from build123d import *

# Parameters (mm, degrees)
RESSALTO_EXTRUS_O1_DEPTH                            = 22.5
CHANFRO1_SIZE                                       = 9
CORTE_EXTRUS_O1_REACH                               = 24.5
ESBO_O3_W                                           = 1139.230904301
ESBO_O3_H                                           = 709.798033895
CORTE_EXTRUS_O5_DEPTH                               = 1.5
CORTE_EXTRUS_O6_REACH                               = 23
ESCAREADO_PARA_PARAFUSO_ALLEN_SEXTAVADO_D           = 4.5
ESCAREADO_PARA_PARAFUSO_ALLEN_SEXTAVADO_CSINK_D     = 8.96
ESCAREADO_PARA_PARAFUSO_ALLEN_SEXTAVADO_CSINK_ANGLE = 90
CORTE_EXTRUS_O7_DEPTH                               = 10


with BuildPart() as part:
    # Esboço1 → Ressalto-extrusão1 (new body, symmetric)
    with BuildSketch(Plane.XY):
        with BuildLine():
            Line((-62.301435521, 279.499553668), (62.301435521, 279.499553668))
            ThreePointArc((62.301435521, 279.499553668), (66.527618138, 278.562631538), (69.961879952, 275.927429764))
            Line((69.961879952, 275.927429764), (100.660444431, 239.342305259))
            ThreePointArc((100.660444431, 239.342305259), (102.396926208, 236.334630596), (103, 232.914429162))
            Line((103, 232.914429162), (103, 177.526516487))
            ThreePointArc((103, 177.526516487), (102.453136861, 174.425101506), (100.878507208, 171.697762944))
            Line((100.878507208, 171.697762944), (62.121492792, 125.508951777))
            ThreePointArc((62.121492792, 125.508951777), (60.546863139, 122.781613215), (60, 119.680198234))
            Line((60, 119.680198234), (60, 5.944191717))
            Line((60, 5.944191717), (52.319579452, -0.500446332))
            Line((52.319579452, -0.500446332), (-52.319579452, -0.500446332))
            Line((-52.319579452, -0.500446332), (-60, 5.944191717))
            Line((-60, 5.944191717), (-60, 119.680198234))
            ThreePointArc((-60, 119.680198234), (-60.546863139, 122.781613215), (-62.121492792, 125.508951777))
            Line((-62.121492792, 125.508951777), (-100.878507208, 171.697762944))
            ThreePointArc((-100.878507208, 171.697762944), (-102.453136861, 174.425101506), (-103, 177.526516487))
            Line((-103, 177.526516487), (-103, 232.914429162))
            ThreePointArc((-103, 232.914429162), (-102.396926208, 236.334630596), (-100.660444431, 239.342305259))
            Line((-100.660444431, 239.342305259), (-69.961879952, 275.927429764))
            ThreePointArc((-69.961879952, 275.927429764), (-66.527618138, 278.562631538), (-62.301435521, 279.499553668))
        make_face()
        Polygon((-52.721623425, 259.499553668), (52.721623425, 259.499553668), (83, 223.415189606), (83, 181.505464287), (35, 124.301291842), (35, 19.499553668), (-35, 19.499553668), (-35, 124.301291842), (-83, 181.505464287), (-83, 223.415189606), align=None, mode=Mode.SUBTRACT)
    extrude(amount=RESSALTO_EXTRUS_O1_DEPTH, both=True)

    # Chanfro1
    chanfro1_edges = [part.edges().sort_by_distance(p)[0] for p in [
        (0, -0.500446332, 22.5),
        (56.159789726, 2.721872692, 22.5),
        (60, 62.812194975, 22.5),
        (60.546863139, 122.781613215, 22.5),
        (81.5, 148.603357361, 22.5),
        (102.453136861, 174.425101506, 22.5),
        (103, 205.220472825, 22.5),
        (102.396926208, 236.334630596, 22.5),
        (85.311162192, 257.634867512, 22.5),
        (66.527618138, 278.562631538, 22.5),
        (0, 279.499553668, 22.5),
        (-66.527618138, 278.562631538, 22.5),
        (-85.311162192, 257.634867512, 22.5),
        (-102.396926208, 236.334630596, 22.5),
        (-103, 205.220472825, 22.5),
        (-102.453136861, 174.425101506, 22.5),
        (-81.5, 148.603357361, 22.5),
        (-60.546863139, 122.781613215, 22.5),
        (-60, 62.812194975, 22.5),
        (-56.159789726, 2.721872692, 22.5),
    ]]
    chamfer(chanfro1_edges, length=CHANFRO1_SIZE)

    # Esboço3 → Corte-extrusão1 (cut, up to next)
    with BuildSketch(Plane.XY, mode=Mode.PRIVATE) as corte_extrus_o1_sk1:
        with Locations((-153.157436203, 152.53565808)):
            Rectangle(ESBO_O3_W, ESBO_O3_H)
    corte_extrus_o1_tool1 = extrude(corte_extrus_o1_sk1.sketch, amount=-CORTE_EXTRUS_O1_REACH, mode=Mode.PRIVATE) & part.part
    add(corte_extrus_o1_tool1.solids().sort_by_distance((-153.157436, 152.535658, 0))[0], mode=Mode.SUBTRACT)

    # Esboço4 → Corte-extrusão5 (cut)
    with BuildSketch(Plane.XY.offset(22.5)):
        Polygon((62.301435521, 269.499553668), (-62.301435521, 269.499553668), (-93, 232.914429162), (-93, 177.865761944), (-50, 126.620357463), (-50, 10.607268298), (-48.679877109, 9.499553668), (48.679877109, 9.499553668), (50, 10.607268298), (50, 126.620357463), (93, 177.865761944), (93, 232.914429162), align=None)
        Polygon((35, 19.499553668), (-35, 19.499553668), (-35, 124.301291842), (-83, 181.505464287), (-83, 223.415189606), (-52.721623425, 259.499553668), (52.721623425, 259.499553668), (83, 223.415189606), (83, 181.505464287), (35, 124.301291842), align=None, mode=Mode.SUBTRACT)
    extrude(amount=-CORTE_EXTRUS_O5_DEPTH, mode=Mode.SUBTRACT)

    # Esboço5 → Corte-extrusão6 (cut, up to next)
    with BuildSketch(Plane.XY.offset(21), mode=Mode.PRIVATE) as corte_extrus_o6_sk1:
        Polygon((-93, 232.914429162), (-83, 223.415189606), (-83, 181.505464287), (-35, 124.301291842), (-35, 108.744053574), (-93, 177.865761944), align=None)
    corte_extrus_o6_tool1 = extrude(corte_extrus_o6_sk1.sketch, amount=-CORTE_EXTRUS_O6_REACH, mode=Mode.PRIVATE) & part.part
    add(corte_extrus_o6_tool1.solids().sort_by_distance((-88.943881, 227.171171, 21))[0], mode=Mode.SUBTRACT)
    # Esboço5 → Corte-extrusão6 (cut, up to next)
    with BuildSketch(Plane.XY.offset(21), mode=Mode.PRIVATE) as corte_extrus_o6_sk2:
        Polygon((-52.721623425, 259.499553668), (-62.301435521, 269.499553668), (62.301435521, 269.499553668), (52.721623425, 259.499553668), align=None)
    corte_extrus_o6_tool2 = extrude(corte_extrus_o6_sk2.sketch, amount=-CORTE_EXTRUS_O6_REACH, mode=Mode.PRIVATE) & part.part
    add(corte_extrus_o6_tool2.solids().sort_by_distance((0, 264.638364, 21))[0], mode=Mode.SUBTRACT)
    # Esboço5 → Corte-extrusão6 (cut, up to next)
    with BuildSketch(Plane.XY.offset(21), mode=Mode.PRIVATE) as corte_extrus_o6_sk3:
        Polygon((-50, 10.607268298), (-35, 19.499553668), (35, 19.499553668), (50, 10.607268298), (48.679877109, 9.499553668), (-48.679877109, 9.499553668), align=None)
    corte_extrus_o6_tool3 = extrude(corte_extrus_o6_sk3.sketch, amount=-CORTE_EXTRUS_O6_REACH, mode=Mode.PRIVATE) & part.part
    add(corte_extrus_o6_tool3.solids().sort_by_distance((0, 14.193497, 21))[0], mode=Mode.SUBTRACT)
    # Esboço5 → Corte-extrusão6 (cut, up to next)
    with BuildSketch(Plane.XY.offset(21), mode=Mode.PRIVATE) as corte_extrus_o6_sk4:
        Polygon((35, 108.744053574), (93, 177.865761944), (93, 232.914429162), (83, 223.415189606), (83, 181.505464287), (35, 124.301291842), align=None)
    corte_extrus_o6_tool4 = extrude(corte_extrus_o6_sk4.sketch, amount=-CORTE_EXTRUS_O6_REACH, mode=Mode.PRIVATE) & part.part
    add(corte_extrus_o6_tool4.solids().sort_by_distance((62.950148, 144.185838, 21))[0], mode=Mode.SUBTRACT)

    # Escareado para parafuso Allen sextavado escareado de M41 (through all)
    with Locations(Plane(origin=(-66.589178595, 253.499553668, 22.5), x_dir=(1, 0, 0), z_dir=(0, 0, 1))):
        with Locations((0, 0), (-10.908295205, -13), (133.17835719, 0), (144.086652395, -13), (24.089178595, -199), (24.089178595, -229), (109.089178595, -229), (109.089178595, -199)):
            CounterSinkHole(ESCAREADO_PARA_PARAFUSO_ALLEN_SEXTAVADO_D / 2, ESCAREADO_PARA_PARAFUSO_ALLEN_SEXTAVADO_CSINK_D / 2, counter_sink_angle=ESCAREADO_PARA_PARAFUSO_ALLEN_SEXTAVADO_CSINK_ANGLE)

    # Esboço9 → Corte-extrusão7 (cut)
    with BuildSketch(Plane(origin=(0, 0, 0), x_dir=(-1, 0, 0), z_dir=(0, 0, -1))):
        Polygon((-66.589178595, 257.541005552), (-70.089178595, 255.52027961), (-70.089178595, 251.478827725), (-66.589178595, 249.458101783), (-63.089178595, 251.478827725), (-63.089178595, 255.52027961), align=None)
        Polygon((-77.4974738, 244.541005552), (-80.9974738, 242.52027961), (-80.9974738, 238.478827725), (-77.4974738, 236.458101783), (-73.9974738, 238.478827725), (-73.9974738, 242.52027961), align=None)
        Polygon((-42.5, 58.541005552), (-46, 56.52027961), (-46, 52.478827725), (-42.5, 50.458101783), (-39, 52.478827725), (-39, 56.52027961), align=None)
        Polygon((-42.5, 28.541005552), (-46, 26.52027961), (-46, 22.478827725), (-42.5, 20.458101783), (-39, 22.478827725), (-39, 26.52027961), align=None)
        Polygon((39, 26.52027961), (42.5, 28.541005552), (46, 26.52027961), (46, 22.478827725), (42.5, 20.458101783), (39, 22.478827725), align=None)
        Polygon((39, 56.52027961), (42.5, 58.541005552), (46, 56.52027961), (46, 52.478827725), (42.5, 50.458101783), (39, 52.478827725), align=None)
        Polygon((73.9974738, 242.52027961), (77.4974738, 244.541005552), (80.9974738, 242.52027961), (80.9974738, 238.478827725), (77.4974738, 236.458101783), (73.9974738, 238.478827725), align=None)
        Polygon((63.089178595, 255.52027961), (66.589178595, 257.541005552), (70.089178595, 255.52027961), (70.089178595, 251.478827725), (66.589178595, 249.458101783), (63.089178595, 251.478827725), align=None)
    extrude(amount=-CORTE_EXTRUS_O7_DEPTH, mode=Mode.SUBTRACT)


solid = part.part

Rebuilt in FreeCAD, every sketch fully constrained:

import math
import FreeCAD as App
import Part
import Sketcher
Q = App.Units.Quantity


def edges_at(feature, points):
    """Names of the edges that pass closest to the given points."""
    edges = feature.Shape.Edges
    near = lambda p: min(range(len(edges)), key=lambda i: edges[i].distToShape(Part.Vertex(*p))[0])
    return sorted({f"Edge{near(p) + 1}" for p in points})


def add_polygon(sketch, points):
    """Adds a closed chain of lines whose ends are joined by coincident constraints."""
    first, n = sketch.GeometryCount, len(points)
    for a, b in zip(points, points[1:] + points[:1]):
        sketch.addGeometry(Part.LineSegment(App.Vector(*a, 0), App.Vector(*b, 0)), False)
    for i in range(n):
        sketch.addConstraint(Sketcher.Constraint("Coincident", first + i, 2, first + (i + 1) % n, 1))

doc = App.newDocument("Part")
params = doc.addObject("Spreadsheet::Sheet", "Params")
for row, (alias, value) in enumerate([
    ("sketch1_radius", "10 mm"),
    ("sketch1_width", "70 mm"),
    ("pad1_length", "45 mm"),
    ("chamfer_size", "9 mm"),
    ("pocket1_length", "22.5 mm"),
    ("sketch3_width", "70 mm"),
    ("pocket2_length", "1.5 mm"),
    ("pocket3_length", "21 mm"),
    ("sketch6_width", "70 mm"),
    ("pocket6_length", "21 mm"),
    ("sketch8_diameter", "4.5 mm"),
    ("hole_diameter", "4.5 mm"),
    ("hole_csink_diameter", "8.96 mm"),
    ("pocket7_length", "10 mm"),
], start=1):
    params.set(f"A{row}", alias)
    params.set(f"B{row}", "=" + value)
    params.setAlias(f"B{row}", alias)

body = doc.addObject("PartDesign::Body", "Body")

sketch1 = body.newObject("Sketcher::SketchObject", "Sketch")
sketch1.AttachmentSupport = (doc.getObject("XY_Plane"), [""])
sketch1.MapMode = "FlatFace"
sketch1.addGeometry(Part.LineSegment(App.Vector(62.301436, 279.499554, 0), App.Vector(-62.301436, 279.499554, 0)), False)
sketch1.addGeometry(Part.ArcOfCircle(Part.Circle(App.Vector(-62.301436, 269.499554, 0), App.Vector(0, 0, 1), 10), math.radians(90), math.radians(140)), False)
sketch1.addGeometry(Part.LineSegment(App.Vector(-69.96188, 275.92743, 0), App.Vector(-100.660444, 239.342305, 0)), False)
sketch1.addGeometry(Part.ArcOfCircle(Part.Circle(App.Vector(-93, 232.914429, 0), App.Vector(0, 0, 1), 10), math.radians(140), math.radians(180)), False)
sketch1.addGeometry(Part.LineSegment(App.Vector(-103, 232.914429, 0), App.Vector(-103, 177.526516, 0)), False)
sketch1.addGeometry(Part.ArcOfCircle(Part.Circle(App.Vector(-93.932069, 177.526516, 0), App.Vector(0, 0, 1), 9.067931), math.radians(180), math.radians(220)), False)
sketch1.addGeometry(Part.LineSegment(App.Vector(-100.878507, 171.697763, 0), App.Vector(-62.121493, 125.508952, 0)), False)
sketch1.addGeometry(Part.ArcOfCircle(Part.Circle(App.Vector(-69.067931, 119.680198, 0), App.Vector(0, 0, 1), 9.067931), math.radians(0), math.radians(40)), False)
sketch1.addGeometry(Part.LineSegment(App.Vector(-60, 119.680198, 0), App.Vector(-60, 5.944192, 0)), False)
sketch1.addGeometry(Part.LineSegment(App.Vector(-60, 5.944192, 0), App.Vector(-52.319579, -0.500446, 0)), False)
sketch1.addGeometry(Part.LineSegment(App.Vector(-52.319579, -0.500446, 0), App.Vector(52.319579, -0.500446, 0)), False)
sketch1.addGeometry(Part.LineSegment(App.Vector(52.319579, -0.500446, 0), App.Vector(60, 5.944192, 0)), False)
sketch1.addGeometry(Part.LineSegment(App.Vector(60, 5.944192, 0), App.Vector(60, 119.680198, 0)), False)
sketch1.addGeometry(Part.ArcOfCircle(Part.Circle(App.Vector(69.067931, 119.680198, 0), App.Vector(0, 0, 1), 9.067931), math.radians(140), math.radians(180)), False)
sketch1.addGeometry(Part.LineSegment(App.Vector(62.121493, 125.508952, 0), App.Vector(100.878507, 171.697763, 0)), False)
sketch1.addGeometry(Part.ArcOfCircle(Part.Circle(App.Vector(93.932069, 177.526516, 0), App.Vector(0, 0, 1), 9.067931), math.radians(-40), math.radians(0)), False)
sketch1.addGeometry(Part.LineSegment(App.Vector(103, 177.526516, 0), App.Vector(103, 232.914429, 0)), False)
sketch1.addGeometry(Part.ArcOfCircle(Part.Circle(App.Vector(93, 232.914429, 0), App.Vector(0, 0, 1), 10), math.radians(0), math.radians(40)), False)
sketch1.addGeometry(Part.LineSegment(App.Vector(100.660444, 239.342305, 0), App.Vector(69.96188, 275.92743, 0)), False)
sketch1.addGeometry(Part.ArcOfCircle(Part.Circle(App.Vector(62.301436, 269.499554, 0), App.Vector(0, 0, 1), 10), math.radians(40), math.radians(90)), False)
add_polygon(sketch1, [(-52.721623, 259.499554), (52.721623, 259.499554), (83, 223.41519), (83, 181.505464), (35, 124.301292), (35, 19.499554), (-35, 19.499554), (-35, 124.301292), (-83, 181.505464), (-83, 223.41519)])
sketch1.addConstraint([
    Sketcher.Constraint("Tangent", 0, 2, 1, 1),
    Sketcher.Constraint("Tangent", 1, 2, 2, 1),
    Sketcher.Constraint("Tangent", 2, 2, 3, 1),
    Sketcher.Constraint("Tangent", 3, 2, 4, 1),
    Sketcher.Constraint("Tangent", 4, 2, 5, 1),
    Sketcher.Constraint("Tangent", 5, 2, 6, 1),
    Sketcher.Constraint("Tangent", 6, 2, 7, 2),
    Sketcher.Constraint("Tangent", 7, 1, 8, 1),
    Sketcher.Constraint("Coincident", 8, 2, 9, 1),
    Sketcher.Constraint("Coincident", 9, 2, 10, 1),
    Sketcher.Constraint("Coincident", 10, 2, 11, 1),
    Sketcher.Constraint("Coincident", 11, 2, 12, 1),
    Sketcher.Constraint("Tangent", 12, 2, 13, 2),
    Sketcher.Constraint("Tangent", 13, 1, 14, 1),
    Sketcher.Constraint("Tangent", 14, 2, 15, 1),
    Sketcher.Constraint("Tangent", 15, 2, 16, 1),
    Sketcher.Constraint("Tangent", 16, 2, 17, 1),
    Sketcher.Constraint("Tangent", 17, 2, 18, 1),
    Sketcher.Constraint("Tangent", 18, 2, 19, 1),
    Sketcher.Constraint("Tangent", 19, 2, 0, 1),
    Sketcher.Constraint("Horizontal", 0),
    Sketcher.Constraint("Vertical", 4),
    Sketcher.Constraint("Vertical", 8),
    Sketcher.Constraint("Horizontal", 10),
    Sketcher.Constraint("Vertical", 12),
    Sketcher.Constraint("Vertical", 16),
    Sketcher.Constraint("Horizontal", 20),
    Sketcher.Constraint("Vertical", 22),
    Sketcher.Constraint("Vertical", 24),
    Sketcher.Constraint("Horizontal", 25),
    Sketcher.Constraint("Vertical", 26),
    Sketcher.Constraint("Vertical", 28),
    Sketcher.Constraint("Equal", 1, 3),
    Sketcher.Constraint("Equal", 5, 7),
    Sketcher.Constraint("Equal", 7, 13),
    Sketcher.Constraint("Equal", 13, 15),
    Sketcher.Constraint("Equal", 3, 17),
    Sketcher.Constraint("Equal", 17, 19),
    Sketcher.Constraint("Symmetric", 7, 3, 13, 3, -2),
    Sketcher.Constraint("Symmetric", 5, 3, 15, 3, -2),
    Sketcher.Constraint("Symmetric", 2, 2, 17, 2, -2),
    Sketcher.Constraint("Symmetric", 23, 2, 26, 2, -2),
    Sketcher.Constraint("Symmetric", 22, 2, 27, 2, -2),
    Sketcher.Constraint("Perpendicular", 2, 9),
    Sketcher.Constraint("Perpendicular", 6, 11),
    Sketcher.Constraint("Perpendicular", 9, 14),
    Sketcher.Constraint("Parallel", 18, 21),
    Sketcher.Constraint("Parallel", 14, 23),
    Sketcher.Constraint("Parallel", 23, 29),
    Sketcher.Constraint("Horizontal", 8, 2, 11, 2),
    Sketcher.Constraint("Horizontal", 21, 2, 28, 2),
    Sketcher.Constraint("Radius", 1, Q("10 mm")),
    Sketcher.Constraint("DistanceX", 25, 2, 25, 1, Q("70 mm")),
    Sketcher.Constraint("Angle", 2, Q("-130 deg")),
    Sketcher.Constraint("DistanceX", 3, 3, -1, 1, Q("93 mm")),
    Sketcher.Constraint("DistanceX", 7, 1, -1, 1, Q("60 mm")),
    Sketcher.Constraint("DistanceX", -1, 1, 21, 2, Q("83 mm")),
    Sketcher.Constraint("DistanceY", 20, 2, 19, 3, Q("10 mm")),
    Sketcher.Constraint("DistanceY", 10, 2, 24, 2, Q("20 mm")),
    Sketcher.Constraint("Radius", 5, Q("9.067931 mm")),
    Sketcher.Constraint("DistanceY", 3, 3, 1, 2, Q("43.013001 mm")),
    Sketcher.Constraint("DistanceX", 10, 1, 10, 2, Q("104.639159 mm")),
    Sketcher.Constraint("DistanceY", 24, 2, 24, 1, Q("104.801738 mm")),
    Sketcher.Constraint("DistanceY", -1, 1, 7, 3, Q("119.680198 mm")),
    Sketcher.Constraint("DistanceY", 9, 2, 6, 2, Q("126.009398 mm")),
    Sketcher.Constraint("Distance", 21, Q("47.104792 mm")),
    Sketcher.Constraint("DistanceY", 4, 2, 4, 1, Q("55.387913 mm")),
])
sketch1.setExpression("Constraints[61]", "Params.sketch1_radius")
sketch1.setExpression("Constraints[62]", "Params.sketch1_width")
pad1 = body.newObject("PartDesign::Pad", "Pad")
pad1.Profile = sketch1
pad1.setExpression("Length", "Params.pad1_length")
pad1.Midplane = True
doc.recompute()

chamfer = body.newObject("PartDesign::Chamfer", "Chamfer")
chamfer.Base = (pad1, edges_at(pad1, [
    (0, -0.5, 22.5),
    (56.16, 2.722, 22.5),
    (60, 62.812, 22.5),
    (60.547, 122.782, 22.5),
    (81.5, 148.603, 22.5),
    (102.453, 174.425, 22.5),
    (103, 205.22, 22.5),
    (102.397, 236.335, 22.5),
    (85.311, 257.635, 22.5),
    (66.528, 278.563, 22.5),
    (0, 279.5, 22.5),
    (-66.528, 278.563, 22.5),
    (-85.311, 257.635, 22.5),
    (-102.397, 236.335, 22.5),
    (-103, 205.22, 22.5),
    (-102.453, 174.425, 22.5),
    (-81.5, 148.603, 22.5),
    (-60.547, 122.782, 22.5),
    (-60, 62.812, 22.5),
    (-56.16, 2.722, 22.5),
]))
chamfer.setExpression("Size", "Params.chamfer_size")

sketch2 = body.newObject("Sketcher::SketchObject", "Sketch001")
sketch2.AttachmentSupport = (doc.getObject("XY_Plane"), [""])
sketch2.MapMode = "FlatFace"
add_polygon(sketch2, [(-722.772888, 507.434675), (-722.772888, -202.363359), (416.458016, -202.363359), (416.458016, 507.434675)])
sketch2.addConstraint([
    Sketcher.Constraint("Vertical", 0),
    Sketcher.Constraint("Horizontal", 1),
    Sketcher.Constraint("Vertical", 2),
    Sketcher.Constraint("Horizontal", 3),
    Sketcher.Constraint("DistanceX", 1, 1, 1, 2, Q("1139.230904 mm")),
    Sketcher.Constraint("DistanceY", 0, 2, 0, 1, Q("709.798034 mm")),
    Sketcher.Constraint("DistanceX", 0, 2, -1, 1, Q("722.772888 mm")),
    Sketcher.Constraint("DistanceY", 0, 2, -1, 1, Q("202.363359 mm")),
])
pocket1 = body.newObject("PartDesign::Pocket", "Pocket")
pocket1.Profile = sketch2
pocket1.setExpression("Length", "Params.pocket1_length")

sketch3 = body.newObject("Sketcher::SketchObject", "Sketch002")
sketch3.AttachmentSupport = (doc.getObject("XY_Plane"), [""])
sketch3.MapMode = "FlatFace"
sketch3.AttachmentOffset = App.Placement(App.Vector(0, 0, 22.5), App.Rotation())
add_polygon(sketch3, [(62.301436, 269.499554), (-62.301436, 269.499554), (-93, 232.914429), (-93, 177.865762), (-50, 126.620357), (-50, 10.607268), (-48.679877, 9.499554), (48.679877, 9.499554), (50, 10.607268), (50, 126.620357), (93, 177.865762), (93, 232.914429)])
add_polygon(sketch3, [(35, 124.301292), (35, 19.499554), (-35, 19.499554), (-35, 124.301292), (-83, 181.505464), (-83, 223.41519), (-52.721623, 259.499554), (52.721623, 259.499554), (83, 223.41519), (83, 181.505464)])
sketch3.addConstraint([
    Sketcher.Constraint("Horizontal", 0),
    Sketcher.Constraint("Vertical", 2),
    Sketcher.Constraint("Vertical", 4),
    Sketcher.Constraint("Horizontal", 6),
    Sketcher.Constraint("Vertical", 8),
    Sketcher.Constraint("Vertical", 10),
    Sketcher.Constraint("Vertical", 12),
    Sketcher.Constraint("Horizontal", 13),
    Sketcher.Constraint("Vertical", 14),
    Sketcher.Constraint("Vertical", 16),
    Sketcher.Constraint("Horizontal", 18),
    Sketcher.Constraint("Vertical", 20),
    Sketcher.Constraint("Symmetric", 4, 2, 7, 2, -2),
    Sketcher.Constraint("Symmetric", 2, 2, 9, 2, -2),
    Sketcher.Constraint("Symmetric", 16, 2, 19, 2, -2),
    Sketcher.Constraint("Symmetric", 14, 2, 21, 2, -2),
    Sketcher.Constraint("Perpendicular", 1, 5),
    Sketcher.Constraint("Perpendicular", 3, 7),
    Sketcher.Constraint("Perpendicular", 5, 9),
    Sketcher.Constraint("Perpendicular", 7, 11),
    Sketcher.Constraint("Parallel", 11, 15),
    Sketcher.Constraint("Parallel", 9, 17),
    Sketcher.Constraint("Parallel", 15, 19),
    Sketcher.Constraint("Parallel", 17, 21),
    Sketcher.Constraint("Horizontal", 3, 2, 8, 2),
    Sketcher.Constraint("Horizontal", 1, 2, 10, 2),
    Sketcher.Constraint("DistanceX", 13, 2, 13, 1, Q("70 mm")),
    Sketcher.Constraint("Angle", 1, Q("-130 deg")),
    Sketcher.Constraint("DistanceX", 1, 2, -1, 1, Q("93 mm")),
    Sketcher.Constraint("DistanceX", 3, 2, -1, 1, Q("50 mm")),
    Sketcher.Constraint("DistanceX", 15, 2, -1, 1, Q("83 mm")),
    Sketcher.Constraint("DistanceY", 5, 2, 0, 2, Q("260 mm")),
    Sketcher.Constraint("DistanceY", 6, 2, 12, 2, Q("10 mm")),
    Sketcher.Constraint("DistanceY", 17, 2, 0, 2, Q("10 mm")),
    Sketcher.Constraint("Distance", 5, Q("1.723298 mm")),
    Sketcher.Constraint("DistanceX", 0, 2, 0, 1, Q("124.602871 mm")),
    Sketcher.Constraint("DistanceY", 4, 2, 4, 1, Q("116.013089 mm")),
    Sketcher.Constraint("DistanceY", 12, 2, 12, 1, Q("104.801738 mm")),
    Sketcher.Constraint("Distance", 17, Q("47.104792 mm")),
    Sketcher.Constraint("DistanceY", -1, 1, 1, 2, Q("232.914429 mm")),
])
sketch3.setExpression("Constraints[48]", "Params.sketch3_width")
pocket2 = body.newObject("PartDesign::Pocket", "Pocket001")
pocket2.Profile = sketch3
pocket2.setExpression("Length", "Params.pocket2_length")

sketch4 = body.newObject("Sketcher::SketchObject", "Sketch003")
sketch4.AttachmentSupport = (doc.getObject("XY_Plane"), [""])
sketch4.MapMode = "FlatFace"
sketch4.AttachmentOffset = App.Placement(App.Vector(0, 0, 21), App.Rotation())
add_polygon(sketch4, [(-83, 223.41519), (-93, 232.914429), (-93, 177.865762), (-35, 108.744054), (-35, 124.301292), (-83, 181.505464)])
sketch4.addConstraint([
    Sketcher.Constraint("Vertical", 1),
    Sketcher.Constraint("Vertical", 3),
    Sketcher.Constraint("Vertical", 5),
    Sketcher.Constraint("Parallel", 2, 4),
    Sketcher.Constraint("Angle", 2, Q("-50 deg")),
    Sketcher.Constraint("DistanceX", 0, 2, -1, 1, Q("93 mm")),
    Sketcher.Constraint("DistanceX", 2, 2, -1, 1, Q("35 mm")),
    Sketcher.Constraint("DistanceX", 4, 2, -1, 1, Q("83 mm")),
    Sketcher.Constraint("DistanceY", 3, 1, 3, 2, Q("15.557238 mm")),
    Sketcher.Constraint("Distance", 0, Q("13.79259 mm")),
    Sketcher.Constraint("DistanceY", 1, 2, 1, 1, Q("55.048667 mm")),
    Sketcher.Constraint("DistanceY", -1, 1, 0, 2, Q("232.914429 mm")),
])
pocket3 = body.newObject("PartDesign::Pocket", "Pocket002")
pocket3.Profile = sketch4
pocket3.setExpression("Length", "Params.pocket3_length")

sketch5 = body.newObject("Sketcher::SketchObject", "Sketch004")
sketch5.AttachmentSupport = (doc.getObject("XY_Plane"), [""])
sketch5.MapMode = "FlatFace"
sketch5.AttachmentOffset = App.Placement(App.Vector(0, 0, 21), App.Rotation())
add_polygon(sketch5, [(-62.301436, 269.499554), (-52.721623, 259.499554), (52.721623, 259.499554), (62.301436, 269.499554)])
sketch5.addConstraint([
    Sketcher.Constraint("Horizontal", 1),
    Sketcher.Constraint("Horizontal", 3),
    Sketcher.Constraint("Equal", 0, 2),
    Sketcher.Constraint("DistanceY", 1, 2, 2, 2, Q("10 mm")),
    Sketcher.Constraint("DistanceX", 3, 2, 3, 1, Q("124.602871 mm")),
    Sketcher.Constraint("DistanceX", 1, 1, 1, 2, Q("105.443247 mm")),
    Sketcher.Constraint("DistanceX", 0, 2, -1, 1, Q("52.721623 mm")),
    Sketcher.Constraint("DistanceY", -1, 1, 0, 2, Q("259.499554 mm")),
])
pocket4 = body.newObject("PartDesign::Pocket", "Pocket003")
pocket4.Profile = sketch5
pocket4.Type = "UpToFirst"

sketch6 = body.newObject("Sketcher::SketchObject", "Sketch005")
sketch6.AttachmentSupport = (doc.getObject("XY_Plane"), [""])
sketch6.MapMode = "FlatFace"
sketch6.AttachmentOffset = App.Placement(App.Vector(0, 0, 21), App.Rotation())
add_polygon(sketch6, [(-35, 19.499554), (-50, 10.607268), (-48.679877, 9.499554), (48.679877, 9.499554), (50, 10.607268), (35, 19.499554)])
sketch6.addConstraint([
    Sketcher.Constraint("Horizontal", 2),
    Sketcher.Constraint("Horizontal", 5),
    Sketcher.Constraint("Symmetric", 0, 2, 3, 2, -2),
    Sketcher.Constraint("Equal", 1, 3),
    Sketcher.Constraint("Equal", 0, 4),
    Sketcher.Constraint("DistanceX", 5, 2, 5, 1, Q("70 mm")),
    Sketcher.Constraint("Angle", 1, Q("-40 deg")),
    Sketcher.Constraint("DistanceX", 0, 2, -1, 1, Q("50 mm")),
    Sketcher.Constraint("DistanceY", 2, 2, 4, 2, Q("10 mm")),
    Sketcher.Constraint("Distance", 1, Q("1.723298 mm")),
    Sketcher.Constraint("DistanceY", -1, 1, 0, 2, Q("10.607268 mm")),
])
sketch6.setExpression("Constraints[11]", "Params.sketch6_width")
pocket5 = body.newObject("PartDesign::Pocket", "Pocket004")
pocket5.Profile = sketch6
pocket5.Type = "UpToFirst"

sketch7 = body.newObject("Sketcher::SketchObject", "Sketch006")
sketch7.AttachmentSupport = (doc.getObject("XY_Plane"), [""])
sketch7.MapMode = "FlatFace"
sketch7.AttachmentOffset = App.Placement(App.Vector(0, 0, 21), App.Rotation())
add_polygon(sketch7, [(35, 108.744054), (93, 177.865762), (93, 232.914429), (83, 223.41519), (83, 181.505464), (35, 124.301292)])
sketch7.addConstraint([
    Sketcher.Constraint("Vertical", 1),
    Sketcher.Constraint("Vertical", 3),
    Sketcher.Constraint("Vertical", 5),
    Sketcher.Constraint("Parallel", 0, 4),
    Sketcher.Constraint("Angle", 0, Q("50 deg")),
    Sketcher.Constraint("DistanceX", -1, 1, 0, 2, Q("93 mm")),
    Sketcher.Constraint("DistanceX", -1, 1, 2, 2, Q("83 mm")),
    Sketcher.Constraint("DistanceX", -1, 1, 4, 2, Q("35 mm")),
    Sketcher.Constraint("DistanceY", 5, 2, 5, 1, Q("15.557238 mm")),
    Sketcher.Constraint("Distance", 2, Q("13.79259 mm")),
    Sketcher.Constraint("DistanceY", 1, 1, 1, 2, Q("55.048667 mm")),
    Sketcher.Constraint("DistanceY", -1, 1, 0, 2, Q("177.865762 mm")),
])
pocket6 = body.newObject("PartDesign::Pocket", "Pocket005")
pocket6.Profile = sketch7
pocket6.setExpression("Length", "Params.pocket6_length")

sketch8 = body.newObject("Sketcher::SketchObject", "Sketch007")
sketch8.AttachmentSupport = (doc.getObject("XY_Plane"), [""])
sketch8.MapMode = "FlatFace"
sketch8.AttachmentOffset = App.Placement(App.Vector(0, 0, 22.5), App.Rotation())
sketch8.addGeometry([
    Part.Circle(App.Vector(-66.589179, 253.499554, 0), App.Vector(0, 0, 1), 2.25),
    Part.Circle(App.Vector(-77.497474, 240.499554, 0), App.Vector(0, 0, 1), 2.25),
    Part.Circle(App.Vector(66.589179, 253.499554, 0), App.Vector(0, 0, 1), 2.25),
    Part.Circle(App.Vector(77.497474, 240.499554, 0), App.Vector(0, 0, 1), 2.25),
    Part.Circle(App.Vector(-42.5, 54.499554, 0), App.Vector(0, 0, 1), 2.25),
    Part.Circle(App.Vector(-42.5, 24.499554, 0), App.Vector(0, 0, 1), 2.25),
    Part.Circle(App.Vector(42.5, 24.499554, 0), App.Vector(0, 0, 1), 2.25),
    Part.Circle(App.Vector(42.5, 54.499554, 0), App.Vector(0, 0, 1), 2.25),
], False)
sketch8.addConstraint([
    Sketcher.Constraint("Equal", 0, 1),
    Sketcher.Constraint("Equal", 1, 2),
    Sketcher.Constraint("Equal", 2, 3),
    Sketcher.Constraint("Equal", 3, 4),
    Sketcher.Constraint("Equal", 4, 5),
    Sketcher.Constraint("Equal", 5, 6),
    Sketcher.Constraint("Equal", 6, 7),
    Sketcher.Constraint("Symmetric", 0, 3, 2, 3, -2),
    Sketcher.Constraint("Symmetric", 1, 3, 3, 3, -2),
    Sketcher.Constraint("Symmetric", 5, 3, 6, 3, -2),
    Sketcher.Constraint("Symmetric", 4, 3, 7, 3, -2),
    Sketcher.Constraint("Vertical", 4, 3, 5, 3),
    Sketcher.Constraint("Diameter", 0, Q("4.5 mm")),
    Sketcher.Constraint("DistanceY", 1, 3, 0, 3, Q("13 mm")),
    Sketcher.Constraint("DistanceY", 4, 3, 1, 3, Q("186 mm")),
    Sketcher.Constraint("DistanceY", 5, 3, 4, 3, Q("30 mm")),
    Sketcher.Constraint("DistanceX", 5, 3, 6, 3, Q("85 mm")),
    Sketcher.Constraint("DistanceX", 0, 3, -1, 1, Q("66.589179 mm")),
    Sketcher.Constraint("DistanceY", -1, 1, 0, 3, Q("253.499554 mm")),
    Sketcher.Constraint("DistanceX", 1, 3, -1, 1, Q("77.497474 mm")),
])
sketch8.setExpression("Constraints[12]", "Params.sketch8_diameter")
doc.recompute()
hole = body.newObject("PartDesign::Hole", "Hole")
hole.Profile = sketch8
hole.ThreadType = "None"
hole.setExpression("Diameter", "Params.hole_diameter")
hole.DepthType = "ThroughAll"
hole.HoleCutType = "Countersink"
hole.setExpression("HoleCutDiameter", "Params.hole_csink_diameter")
hole.HoleCutCountersinkAngle = 90

sketch9 = body.newObject("Sketcher::SketchObject", "Sketch008")
sketch9.AttachmentSupport = (doc.getObject("XY_Plane"), [""])
sketch9.MapMode = "FlatFace"
add_polygon(sketch9, [(66.589179, 257.541006), (70.089179, 255.52028), (70.089179, 251.478828), (66.589179, 249.458102), (63.089179, 251.478828), (63.089179, 255.52028)])
add_polygon(sketch9, [(77.497474, 244.541006), (80.997474, 242.52028), (80.997474, 238.478828), (77.497474, 236.458102), (73.997474, 238.478828), (73.997474, 242.52028)])
add_polygon(sketch9, [(42.5, 58.541006), (46, 56.52028), (46, 52.478828), (42.5, 50.458102), (39, 52.478828), (39, 56.52028)])
add_polygon(sketch9, [(42.5, 28.541006), (46, 26.52028), (46, 22.478828), (42.5, 20.458102), (39, 22.478828), (39, 26.52028)])
add_polygon(sketch9, [(-42.5, 28.541006), (-39, 26.52028), (-39, 22.478828), (-42.5, 20.458102), (-46, 22.478828), (-46, 26.52028)])
add_polygon(sketch9, [(-42.5, 58.541006), (-39, 56.52028), (-39, 52.478828), (-42.5, 50.458102), (-46, 52.478828), (-46, 56.52028)])
add_polygon(sketch9, [(-77.497474, 244.541006), (-73.997474, 242.52028), (-73.997474, 238.478828), (-77.497474, 236.458102), (-80.997474, 238.478828), (-80.997474, 242.52028)])
add_polygon(sketch9, [(-66.589179, 257.541006), (-63.089179, 255.52028), (-63.089179, 251.478828), (-66.589179, 249.458102), (-70.089179, 251.478828), (-70.089179, 255.52028)])
sketch9.addConstraint([
    Sketcher.Constraint("Vertical", 1),
    Sketcher.Constraint("Vertical", 4),
    Sketcher.Constraint("Vertical", 7),
    Sketcher.Constraint("Vertical", 10),
    Sketcher.Constraint("Vertical", 13),
    Sketcher.Constraint("Vertical", 16),
    Sketcher.Constraint("Vertical", 19),
    Sketcher.Constraint("Vertical", 22),
    Sketcher.Constraint("Vertical", 25),
    Sketcher.Constraint("Vertical", 28),
    Sketcher.Constraint("Vertical", 31),
    Sketcher.Constraint("Vertical", 34),
    Sketcher.Constraint("Vertical", 37),
    Sketcher.Constraint("Vertical", 40),
    Sketcher.Constraint("Vertical", 43),
    Sketcher.Constraint("Vertical", 46),
    Sketcher.Constraint("Symmetric", 22, 2, 24, 2, -2),
    Sketcher.Constraint("Symmetric", 20, 2, 26, 2, -2),
    Sketcher.Constraint("Symmetric", 19, 2, 27, 2, -2),
    Sketcher.Constraint("Symmetric", 23, 2, 29, 2, -2),
    Sketcher.Constraint("Symmetric", 16, 2, 30, 2, -2),
    Sketcher.Constraint("Symmetric", 14, 2, 32, 2, -2),
    Sketcher.Constraint("Symmetric", 13, 2, 33, 2, -2),
    Sketcher.Constraint("Symmetric", 17, 2, 35, 2, -2),
    Sketcher.Constraint("Symmetric", 10, 2, 36, 2, -2),
    Sketcher.Constraint("Symmetric", 8, 2, 38, 2, -2),
    Sketcher.Constraint("Symmetric", 7, 2, 39, 2, -2),
    Sketcher.Constraint("Symmetric", 11, 2, 41, 2, -2),
    Sketcher.Constraint("Symmetric", 4, 2, 42, 2, -2),
    Sketcher.Constraint("Symmetric", 2, 2, 44, 2, -2),
    Sketcher.Constraint("Symmetric", 1, 2, 45, 2, -2),
    Sketcher.Constraint("Symmetric", 5, 2, 47, 2, -2),
    Sketcher.Constraint("Parallel", 0, 3),
    Sketcher.Constraint("Parallel", 2, 5),
    Sketcher.Constraint("Parallel", 3, 6),
    Sketcher.Constraint("Parallel", 5, 8),
    Sketcher.Constraint("Parallel", 6, 9),
    Sketcher.Constraint("Parallel", 8, 11),
    Sketcher.Constraint("Parallel", 9, 12),
    Sketcher.Constraint("Parallel", 11, 14),
    Sketcher.Constraint("Parallel", 12, 15),
    Sketcher.Constraint("Parallel", 14, 17),
    Sketcher.Constraint("Parallel", 15, 18),
    Sketcher.Constraint("Parallel", 17, 20),
    Sketcher.Constraint("Parallel", 18, 21),
    Sketcher.Constraint("Parallel", 20, 23),
    Sketcher.Constraint("Parallel", 21, 24),
    Sketcher.Constraint("Parallel", 23, 26),
    Sketcher.Constraint("Parallel", 26, 29),
    Sketcher.Constraint("Parallel", 29, 32),
    Sketcher.Constraint("Parallel", 32, 35),
    Sketcher.Constraint("Parallel", 35, 38),
    Sketcher.Constraint("Parallel", 38, 41),
    Sketcher.Constraint("Parallel", 41, 44),
    Sketcher.Constraint("Parallel", 44, 47),
    Sketcher.Constraint("Horizontal", 1, 2, 3, 2),
    Sketcher.Constraint("Horizontal", 0, 2, 4, 2),
    Sketcher.Constraint("Horizontal", 7, 2, 9, 2),
    Sketcher.Constraint("Horizontal", 6, 2, 10, 2),
    Sketcher.Constraint("Horizontal", 13, 2, 15, 2),
    Sketcher.Constraint("Horizontal", 12, 2, 16, 2),
    Sketcher.Constraint("Horizontal", 19, 2, 21, 2),
    Sketcher.Constraint("Horizontal", 18, 2, 22, 2),
    Sketcher.Constraint("Vertical", 13, 2, 18, 2),
    Sketcher.Constraint("Vertical", 17, 2, 20, 2),
    Sketcher.Constraint("Equal", 4, 7),
    Sketcher.Constraint("Equal", 10, 13),
    Sketcher.Constraint("Equal", 16, 19),
    Sketcher.Constraint("Equal", 5, 6),
    Sketcher.Constraint("Equal", 11, 12),
    Sketcher.Constraint("Angle", 0, Q("-30 deg")),
    Sketcher.Constraint("DistanceX", -1, 1, 12, 2, Q("46 mm")),
    Sketcher.Constraint("DistanceX", -1, 1, 15, 2, Q("39 mm")),
    Sketcher.Constraint("DistanceY", 6, 2, 0, 2, Q("13 mm")),
    Sketcher.Constraint("DistanceY", 12, 2, 10, 2, Q("186 mm")),
    Sketcher.Constraint("DistanceY", 18, 2, 12, 2, Q("30 mm")),
    Sketcher.Constraint("DistanceY", 1, 2, 1, 1, Q("4.041452 mm")),
    Sketcher.Constraint("DistanceY", -1, 1, 2, 2, Q("249.458102 mm")),
    Sketcher.Constraint("DistanceX", -1, 1, 0, 2, Q("70.089179 mm")),
    Sketcher.Constraint("DistanceX", -1, 1, 6, 2, Q("80.997474 mm")),
])
pocket7 = body.newObject("PartDesign::Pocket", "Pocket006")
pocket7.Profile = sketch9
pocket7.setExpression("Length", "Params.pocket7_length")
pocket7.Reversed = True

doc.recompute()
